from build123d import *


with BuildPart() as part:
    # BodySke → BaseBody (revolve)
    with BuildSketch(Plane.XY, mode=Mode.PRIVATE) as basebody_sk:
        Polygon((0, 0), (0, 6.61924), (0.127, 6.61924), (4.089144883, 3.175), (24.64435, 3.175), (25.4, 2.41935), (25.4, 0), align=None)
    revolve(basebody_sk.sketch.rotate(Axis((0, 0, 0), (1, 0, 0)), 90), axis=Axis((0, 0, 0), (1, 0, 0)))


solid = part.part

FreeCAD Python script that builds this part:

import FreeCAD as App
import Part
import Sketcher

V = App.Vector
Q = App.Units.Quantity

doc = App.newDocument("Part")
body = doc.addObject("PartDesign::Body", "Body")

# Sketch on XY plane
sketch1 = body.newObject("Sketcher::SketchObject", "Sketch")
sketch1.AttachmentSupport = (doc.getObject("XY_Plane"), [""])
sketch1.MapMode = "FlatFace"
sketch1.addGeometry(Part.LineSegment(V(0, 6.61924, 0), V(0, 0, 0)), False)
sketch1.addGeometry(Part.LineSegment(V(0, 0, 0), V(25.4, 0, 0)), False)
sketch1.addGeometry(Part.LineSegment(V(25.4, 0, 0), V(25.4, 2.41935, 0)), False)
sketch1.addGeometry(Part.LineSegment(V(25.4, 2.41935, 0), V(24.64435, 3.175, 0)), False)
sketch1.addGeometry(Part.LineSegment(V(24.64435, 3.175, 0), V(4.089145, 3.175, 0)), False)
sketch1.addGeometry(Part.LineSegment(V(4.089145, 3.175, 0), V(0.127, 6.61924, 0)), False)
sketch1.addGeometry(Part.LineSegment(V(0.127, 6.61924, 0), V(0, 6.61924, 0)), False)
sketch1.addConstraint(Sketcher.Constraint("Coincident", 0, 2, 1, 1))
sketch1.addConstraint(Sketcher.Constraint("Coincident", 1, 2, 2, 1))
sketch1.addConstraint(Sketcher.Constraint("Coincident", 2, 2, 3, 1))
sketch1.addConstraint(Sketcher.Constraint("Coincident", 3, 2, 4, 1))
sketch1.addConstraint(Sketcher.Constraint("Coincident", 4, 2, 5, 1))
sketch1.addConstraint(Sketcher.Constraint("Coincident", 5, 2, 6, 1))
sketch1.addConstraint(Sketcher.Constraint("Coincident", 6, 2, 0, 1))
sketch1.addConstraint(Sketcher.Constraint("Vertical", 0))
sketch1.addConstraint(Sketcher.Constraint("Horizontal", 1))
sketch1.addConstraint(Sketcher.Constraint("Vertical", 2))
sketch1.addConstraint(Sketcher.Constraint("Horizontal", 4))
sketch1.addConstraint(Sketcher.Constraint("Horizontal", 6))
sketch1.addConstraint(Sketcher.Constraint("Coincident", 0, 2, -1, 1))
sketch1.addConstraint(Sketcher.Constraint("DistanceX", 1, 1, 1, 2, Q("1 in")))
sketch1.addConstraint(Sketcher.Constraint("Angle", 3, Q("135 deg")))
sketch1.addConstraint(Sketcher.Constraint("Angle", 5, Q("139 deg")))
sketch1.addConstraint(Sketcher.Constraint("DistanceX", 6, 2, 6, 1, Q("0.005 in")))
sketch1.addConstraint(Sketcher.Constraint("DistanceY", 0, 2, 0, 1, Q("0.2606 in")))
sketch1.addConstraint(Sketcher.Constraint("DistanceY", -1, 1, 3, 2, Q("0.125 in")))
sketch1.addConstraint(Sketcher.Constraint("DistanceY", 2, 1, 2, 2, Q("2.41935 mm")))
revolution = body.newObject("PartDesign::Revolution", "Revolution")
revolution.Profile = sketch1
revolution.ReferenceAxis = (sketch1, ["H_Axis"])
revolution.Angle = 360

doc.recompute()
